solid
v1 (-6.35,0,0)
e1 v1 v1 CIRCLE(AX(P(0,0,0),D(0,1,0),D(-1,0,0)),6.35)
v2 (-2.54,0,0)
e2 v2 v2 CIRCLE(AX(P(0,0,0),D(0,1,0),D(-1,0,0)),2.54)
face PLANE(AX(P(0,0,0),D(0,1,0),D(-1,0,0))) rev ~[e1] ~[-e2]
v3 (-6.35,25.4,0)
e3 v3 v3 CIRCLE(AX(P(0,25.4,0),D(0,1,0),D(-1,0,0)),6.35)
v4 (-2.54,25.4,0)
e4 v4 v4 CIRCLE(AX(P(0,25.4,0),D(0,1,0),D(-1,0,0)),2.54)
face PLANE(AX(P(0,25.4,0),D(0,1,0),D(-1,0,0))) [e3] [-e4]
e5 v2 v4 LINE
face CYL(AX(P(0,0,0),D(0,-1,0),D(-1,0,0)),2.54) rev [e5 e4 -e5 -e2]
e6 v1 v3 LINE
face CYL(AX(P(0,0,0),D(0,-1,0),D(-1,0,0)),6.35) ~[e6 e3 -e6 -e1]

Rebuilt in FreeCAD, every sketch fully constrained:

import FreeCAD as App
import Part
import Sketcher

V = App.Vector
Q = App.Units.Quantity

doc = App.newDocument("Part")
body = doc.addObject("PartDesign::Body", "Body")

# Sketch on XZ plane
sketch1 = body.newObject("Sketcher::SketchObject", "Sketch")
sketch1.AttachmentSupport = (doc.getObject("XZ_Plane"), [""])
sketch1.MapMode = "FlatFace"
sketch1.addGeometry([
    Part.Circle(V(0, 0, 0), V(0, 0, 1), 6.35),
    Part.Circle(V(0, 0, 0), V(0, 0, 1), 2.54),
], False)
sketch1.addConstraint([
    Sketcher.Constraint("Coincident", 0, 3, -1, 1),
    Sketcher.Constraint("Coincident", 1, 3, -1, 1),
    Sketcher.Constraint("Diameter", 0, Q("0.5 in")),
    Sketcher.Constraint("Diameter", 1, Q("0.2 in")),
])
pad1 = body.newObject("PartDesign::Pad", "Pad")
pad1.Profile = sketch1
pad1.Length = Q("1 in")
pad1.Reversed = True

doc.recompute()
